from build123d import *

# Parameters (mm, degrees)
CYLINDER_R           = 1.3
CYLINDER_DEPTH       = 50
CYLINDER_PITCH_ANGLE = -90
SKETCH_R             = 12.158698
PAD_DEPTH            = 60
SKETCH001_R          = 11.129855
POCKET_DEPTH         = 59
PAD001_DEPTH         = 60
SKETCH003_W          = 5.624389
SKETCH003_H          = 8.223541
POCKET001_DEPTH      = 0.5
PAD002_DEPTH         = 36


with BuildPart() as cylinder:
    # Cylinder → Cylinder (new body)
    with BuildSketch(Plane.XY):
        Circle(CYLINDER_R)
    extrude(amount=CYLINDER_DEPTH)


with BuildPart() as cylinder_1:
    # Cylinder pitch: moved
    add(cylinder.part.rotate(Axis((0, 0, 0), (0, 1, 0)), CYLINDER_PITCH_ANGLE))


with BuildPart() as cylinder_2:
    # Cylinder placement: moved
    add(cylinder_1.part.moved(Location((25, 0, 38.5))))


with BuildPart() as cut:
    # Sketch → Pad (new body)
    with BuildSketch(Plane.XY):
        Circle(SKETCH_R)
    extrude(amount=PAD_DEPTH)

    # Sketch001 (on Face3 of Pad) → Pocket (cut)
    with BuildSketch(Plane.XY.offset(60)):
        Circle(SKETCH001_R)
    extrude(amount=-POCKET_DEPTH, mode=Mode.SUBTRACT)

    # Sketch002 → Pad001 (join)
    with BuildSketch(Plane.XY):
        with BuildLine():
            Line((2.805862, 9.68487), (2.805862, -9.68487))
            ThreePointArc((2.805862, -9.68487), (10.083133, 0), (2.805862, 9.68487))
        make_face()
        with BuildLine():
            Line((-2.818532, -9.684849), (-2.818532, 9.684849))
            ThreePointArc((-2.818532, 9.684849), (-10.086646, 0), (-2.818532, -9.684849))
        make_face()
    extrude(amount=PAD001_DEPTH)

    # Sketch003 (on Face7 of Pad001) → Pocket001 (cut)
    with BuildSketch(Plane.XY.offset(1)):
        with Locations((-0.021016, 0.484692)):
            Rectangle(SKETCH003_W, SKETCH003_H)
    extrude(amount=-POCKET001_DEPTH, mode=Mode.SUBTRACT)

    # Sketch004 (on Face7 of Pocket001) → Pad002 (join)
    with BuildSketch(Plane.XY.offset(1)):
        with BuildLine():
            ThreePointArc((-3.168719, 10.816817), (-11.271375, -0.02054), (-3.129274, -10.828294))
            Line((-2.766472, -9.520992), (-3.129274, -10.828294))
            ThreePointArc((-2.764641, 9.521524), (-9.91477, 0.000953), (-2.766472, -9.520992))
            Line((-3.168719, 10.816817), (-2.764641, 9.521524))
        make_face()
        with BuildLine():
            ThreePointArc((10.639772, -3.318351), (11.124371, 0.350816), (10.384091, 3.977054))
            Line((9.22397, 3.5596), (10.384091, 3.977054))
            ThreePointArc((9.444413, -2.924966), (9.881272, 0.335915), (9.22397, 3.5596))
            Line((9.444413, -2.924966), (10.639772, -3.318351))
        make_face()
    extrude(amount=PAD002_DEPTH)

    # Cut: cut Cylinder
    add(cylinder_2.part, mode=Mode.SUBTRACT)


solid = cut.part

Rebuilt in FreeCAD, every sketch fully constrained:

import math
import FreeCAD as App
import Part
import Sketcher
Q = App.Units.Quantity


def add_polygon(sketch, points):
    """Adds a closed chain of lines whose ends are joined by coincident constraints."""
    first, n = sketch.GeometryCount, len(points)
    for a, b in zip(points, points[1:] + points[:1]):
        sketch.addGeometry(Part.LineSegment(App.Vector(*a, 0), App.Vector(*b, 0)), False)
    for i in range(n):
        sketch.addConstraint(Sketcher.Constraint("Coincident", first + i, 2, first + (i + 1) % n, 1))

doc = App.newDocument("Part")
body = doc.addObject("PartDesign::Body", "Body")

# Sketch on XY plane
sketch1 = body.newObject("Sketcher::SketchObject", "Sketch")
sketch1.AttachmentSupport = (doc.getObject("XY_Plane"), [""])
sketch1.MapMode = "FlatFace"
sketch1.addGeometry(Part.Circle(App.Vector(0, 0, 0), App.Vector(0, 0, 1), 1.3), False)
sketch1.addConstraint([
    Sketcher.Constraint("Coincident", 0, 3, -1, 1),
    Sketcher.Constraint("Diameter", 0, Q("2.6 mm")),
])
pad1 = body.newObject("PartDesign::Pad", "Pad")
pad1.Profile = sketch1
pad1.Length = 50
body2 = doc.addObject("PartDesign::Body", "Body001")
doc.recompute()

body.Placement = App.Placement(App.Vector(0, 0, 0), App.Rotation(App.Vector(0, 1, 0), 270))
boolean = body2.newObject("PartDesign::Boolean", "Boolean")
boolean.Type = "Fuse"
boolean.addObjects([body])
body3 = doc.addObject("PartDesign::Body", "Body002")
doc.recompute()

body2.Placement = App.Placement(App.Vector(25, 0, 38.5), App.Rotation(App.Vector(0, 0, 1), 0))
boolean2 = body3.newObject("PartDesign::Boolean", "Boolean001")
boolean2.Type = "Fuse"
boolean2.addObjects([body2])
body4 = doc.addObject("PartDesign::Body", "Body003")

# Sketch on XY plane
sketch2 = body4.newObject("Sketcher::SketchObject", "Sketch001")
sketch2.AttachmentSupport = (doc.getObject("XY_Plane003"), [""])
sketch2.MapMode = "FlatFace"
sketch2.addGeometry(Part.Circle(App.Vector(0, 0, 0), App.Vector(0, 0, 1), 12), False)
sketch2.addConstraint([
    Sketcher.Constraint("Coincident", 0, 3, -1, 1),
    Sketcher.Constraint("Diameter", 0, Q("24.317396 mm")),
])
pad2 = body4.newObject("PartDesign::Pad", "Pad001")
pad2.Profile = sketch2
pad2.Length = 60

# Sketch on XY plane
sketch3 = body4.newObject("Sketcher::SketchObject", "Sketch002")
sketch3.AttachmentSupport = (doc.getObject("XY_Plane003"), [""])
sketch3.MapMode = "FlatFace"
sketch3.AttachmentOffset = App.Placement(App.Vector(0, 0, 60), App.Rotation())
sketch3.addGeometry(Part.Circle(App.Vector(0, 0, 0), App.Vector(0, 0, 1), 11), False)
sketch3.addConstraint([
    Sketcher.Constraint("Coincident", 0, 3, -1, 1),
    Sketcher.Constraint("Diameter", 0, Q("22.25971 mm")),
])
pocket1 = body4.newObject("PartDesign::Pocket", "Pocket")
pocket1.Profile = sketch3
pocket1.Length = 59

# Sketch on XY plane
sketch4 = body4.newObject("Sketcher::SketchObject", "Sketch003")
sketch4.AttachmentSupport = (doc.getObject("XY_Plane003"), [""])
sketch4.MapMode = "FlatFace"
sketch4.addGeometry([
    Part.LineSegment(App.Vector(3, 10, 0), App.Vector(3, -10, 0)),
    Part.ArcOfCircle(Part.Circle(App.Vector(0, 0, 0), App.Vector(0, 0, 1), 10), math.radians(-74), math.radians(74)),
    Part.LineSegment(App.Vector(-3, -10, 0), App.Vector(-3, 10, 0)),
    Part.ArcOfCircle(Part.Circle(App.Vector(0, 0, 0), App.Vector(0, 0, 1), 10), math.radians(106), math.radians(254)),
], False)
sketch4.addConstraint([
    Sketcher.Constraint("Coincident", 0, 1, 1, 2),
    Sketcher.Constraint("Coincident", 1, 1, 0, 2),
    Sketcher.Constraint("Coincident", 2, 1, 3, 2),
    Sketcher.Constraint("Coincident", 3, 1, 2, 2),
    Sketcher.Constraint("Vertical", 0),
    Sketcher.Constraint("Vertical", 2),
    Sketcher.Constraint("Coincident", 1, 3, -1, 1),
    Sketcher.Constraint("Coincident", 3, 3, -1, 1),
    Sketcher.Constraint("Radius", 1, Q("10.083133 mm")),
    Sketcher.Constraint("Radius", 3, Q("10.086646 mm")),
    Sketcher.Constraint("DistanceY", 0, 2, 0, 1, Q("19.36974 mm")),
    Sketcher.Constraint("DistanceY", 2, 1, 3, 1, Q("19.369698 mm")),
])
pad3 = body4.newObject("PartDesign::Pad", "Pad002")
pad3.Profile = sketch4
pad3.Length = 60

# Sketch on XY plane
sketch5 = body4.newObject("Sketcher::SketchObject", "Sketch004")
sketch5.AttachmentSupport = (doc.getObject("XY_Plane003"), [""])
sketch5.MapMode = "FlatFace"
sketch5.AttachmentOffset = App.Placement(App.Vector(0, 0, 1), App.Rotation())
add_polygon(sketch5, [(-3, 5), (-3, -4), (3, -4), (3, 5)])  # lines 0-3
sketch5.addConstraint([
    Sketcher.Constraint("Vertical", 0),
    Sketcher.Constraint("Horizontal", 1),
    Sketcher.Constraint("Vertical", 2),
    Sketcher.Constraint("Horizontal", 3),
    Sketcher.Constraint("DistanceX", 1, 1, 1, 2, Q("5.624389 mm")),
    Sketcher.Constraint("DistanceY", 0, 2, 0, 1, Q("8.223541 mm")),
    Sketcher.Constraint("DistanceX", 0, 2, -1, 1, Q("2.83321 mm")),
    Sketcher.Constraint("DistanceY", 0, 2, -1, 1, Q("3.627079 mm")),
])
pocket2 = body4.newObject("PartDesign::Pocket", "Pocket001")
pocket2.Profile = sketch5
pocket2.Length = 0.5

# Sketch on XY plane
sketch6 = body4.newObject("Sketcher::SketchObject", "Sketch005")
sketch6.AttachmentSupport = (doc.getObject("XY_Plane003"), [""])
sketch6.MapMode = "FlatFace"
sketch6.AttachmentOffset = App.Placement(App.Vector(0, 0, 1), App.Rotation())
sketch6.addGeometry([
    Part.ArcOfCircle(Part.Circle(App.Vector(0, 0, 0), App.Vector(0, 0, 1), 11.3), math.radians(106), math.radians(254)),  # 0
    Part.LineSegment(App.Vector(-3.1, -10.8, 0), App.Vector(-2.8, -9.5, 0)),  # 1
    Part.ArcOfCircle(Part.Circle(App.Vector(0, 0, 0), App.Vector(0, 0, 1), 9.9), math.radians(106), math.radians(254)),  # 2
    Part.LineSegment(App.Vector(-2.8, 9.5, 0), App.Vector(-3.2, 10.8, 0)),  # 3
    Part.ArcOfCircle(Part.Circle(App.Vector(0, 0, 0), App.Vector(0, 0, 1), 11.2), math.radians(-17), math.radians(21)),  # 4
    Part.LineSegment(App.Vector(10.4, 4, 0), App.Vector(9.2, 3.6, 0)),  # 5
    Part.ArcOfCircle(Part.Circle(App.Vector(0, 0, 0), App.Vector(0, 0, 1), 9.9), math.radians(-17), math.radians(21)),  # 6
    Part.LineSegment(App.Vector(9.4, -2.9, 0), App.Vector(10.6, -3.3, 0)),  # 7
], False)
sketch6.addConstraint([
    Sketcher.Constraint("Coincident", 0, 2, 1, 1),
    Sketcher.Constraint("Coincident", 1, 2, 2, 2),
    Sketcher.Constraint("Coincident", 2, 1, 3, 1),
    Sketcher.Constraint("Coincident", 3, 2, 0, 1),
    Sketcher.Constraint("Coincident", 4, 2, 5, 1),
    Sketcher.Constraint("Coincident", 5, 2, 6, 2),
    Sketcher.Constraint("Coincident", 6, 1, 7, 1),
    Sketcher.Constraint("Coincident", 7, 2, 4, 1),
    Sketcher.Constraint("Coincident", 0, 3, -1, 1),
    Sketcher.Constraint("Coincident", 2, 3, -1, 1),
    Sketcher.Constraint("Coincident", 6, 3, -1, 1),
    Sketcher.Constraint("Radius", 2, Q("9.91477 mm")),
    Sketcher.Constraint("Radius", 0, Q("11.271393 mm")),
    Sketcher.Constraint("Radius", 4, Q("11.175973 mm")),
    Sketcher.Constraint("Radius", 6, Q("9.886974 mm")),
    Sketcher.Constraint("DistanceY", -1, 1, 5, 2, Q("3.5596 mm")),
    Sketcher.Constraint("DistanceX", 0, 2, 1, 2, Q("0.362802 mm")),
    Sketcher.Constraint("DistanceX", 1, 2, -1, 1, Q("2.766472 mm")),
    Sketcher.Constraint("DistanceX", 2, 1, -1, 1, Q("2.764641 mm")),
    Sketcher.Constraint("DistanceX", 3, 2, -1, 1, Q("3.168719 mm")),
    Sketcher.Constraint("DistanceX", -1, 1, 4, 2, Q("10.384091 mm")),
    Sketcher.Constraint("DistanceY", 7, 2, -1, 1, Q("3.318351 mm")),
    Sketcher.Constraint("DistanceX", 4, 3, 6, 3, Q("0.044751 mm")),
    Sketcher.Constraint("DistanceY", 4, 3, 2, 1, Q("9.562151 mm")),
    Sketcher.Constraint("DistanceX", 6, 1, 4, 2, Q("0.939678 mm")),
])
pad4 = body4.newObject("PartDesign::Pad", "Pad003")
pad4.Profile = sketch6
pad4.Length = 36
doc.recompute()

boolean3 = body4.newObject("PartDesign::Boolean", "Boolean002")
boolean3.Type = "Cut"
boolean3.addObjects([body3])

doc.recompute()
